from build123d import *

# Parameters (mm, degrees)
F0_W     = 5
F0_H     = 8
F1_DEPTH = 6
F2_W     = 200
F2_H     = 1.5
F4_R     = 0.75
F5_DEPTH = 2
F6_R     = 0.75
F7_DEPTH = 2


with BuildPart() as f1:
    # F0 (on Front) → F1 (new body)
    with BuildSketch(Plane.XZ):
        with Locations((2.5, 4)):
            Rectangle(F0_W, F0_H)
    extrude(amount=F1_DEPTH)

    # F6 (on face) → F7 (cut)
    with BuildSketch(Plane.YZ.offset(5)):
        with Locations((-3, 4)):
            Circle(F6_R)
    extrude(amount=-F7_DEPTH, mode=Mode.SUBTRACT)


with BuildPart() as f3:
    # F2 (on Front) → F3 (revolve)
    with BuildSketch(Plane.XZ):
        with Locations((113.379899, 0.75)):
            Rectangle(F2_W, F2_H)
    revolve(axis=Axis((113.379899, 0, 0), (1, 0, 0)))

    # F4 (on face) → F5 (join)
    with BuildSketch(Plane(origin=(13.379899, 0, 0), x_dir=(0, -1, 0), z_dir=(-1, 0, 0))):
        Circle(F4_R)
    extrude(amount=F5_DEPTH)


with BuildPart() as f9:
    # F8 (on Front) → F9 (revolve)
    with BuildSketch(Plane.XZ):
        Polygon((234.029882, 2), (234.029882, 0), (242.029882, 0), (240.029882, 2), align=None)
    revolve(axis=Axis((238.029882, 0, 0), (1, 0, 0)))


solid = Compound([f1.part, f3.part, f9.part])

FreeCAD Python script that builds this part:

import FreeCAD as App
import Part
import Sketcher
Q = App.Units.Quantity

doc = App.newDocument("Part")
body = doc.addObject("PartDesign::Body", "Body")

# Sketch on XZ plane
sketch1 = doc.addObject("Sketcher::SketchObject", "Sketch")
body.addObject(sketch1)
sketch1.AttachmentSupport = (doc.XZ_Plane, [""])
sketch1.MapMode = "FlatFace"
sketch1.addGeometry(Part.LineSegment(App.Vector(0, 8, 0), App.Vector(0, 0, 0)), False)
sketch1.addGeometry(Part.LineSegment(App.Vector(0, 0, 0), App.Vector(5, 0, 0)), False)
sketch1.addGeometry(Part.LineSegment(App.Vector(5, 0, 0), App.Vector(5, 8, 0)), False)
sketch1.addGeometry(Part.LineSegment(App.Vector(5, 8, 0), App.Vector(0, 8, 0)), False)
sketch1.addConstraint(Sketcher.Constraint("Coincident", 0, 2, 1, 1))
sketch1.addConstraint(Sketcher.Constraint("Coincident", 1, 2, 2, 1))
sketch1.addConstraint(Sketcher.Constraint("Coincident", 2, 2, 3, 1))
sketch1.addConstraint(Sketcher.Constraint("Coincident", 3, 2, 0, 1))
sketch1.addConstraint(Sketcher.Constraint("Vertical", 0))
sketch1.addConstraint(Sketcher.Constraint("Horizontal", 1))
sketch1.addConstraint(Sketcher.Constraint("Vertical", 2))
sketch1.addConstraint(Sketcher.Constraint("Horizontal", 3))
sketch1.addConstraint(Sketcher.Constraint("Coincident", 0, 2, -1, 1))
sketch1.addConstraint(Sketcher.Constraint("DistanceX", 1, 1, 1, 2, Q("5 mm")))
sketch1.addConstraint(Sketcher.Constraint("DistanceY", 0, 2, 0, 1, Q("8 mm")))
pad1 = doc.addObject("PartDesign::Pad", "Pad")
body.addObject(pad1)
pad1.Profile = sketch1
pad1.Length = 6

# Sketch on YZ plane
sketch2 = doc.addObject("Sketcher::SketchObject", "Sketch001")
body.addObject(sketch2)
sketch2.AttachmentSupport = (doc.YZ_Plane, [""])
sketch2.MapMode = "FlatFace"
sketch2.AttachmentOffset = App.Placement(App.Vector(0, 0, 5), App.Rotation())
sketch2.addGeometry(Part.Circle(App.Vector(-3, 4, 0), App.Vector(0, 0, 1), 0.8), False)
sketch2.addConstraint(Sketcher.Constraint("Diameter", 0, Q("1.5 mm")))
sketch2.addConstraint(Sketcher.Constraint("DistanceX", 0, 3, -1, 1, Q("3 mm")))
sketch2.addConstraint(Sketcher.Constraint("DistanceY", -1, 1, 0, 3, Q("4 mm")))
pocket1 = doc.addObject("PartDesign::Pocket", "Pocket")
body.addObject(pocket1)
pocket1.Profile = sketch2
pocket1.Length = 2
body2 = doc.addObject("PartDesign::Body", "Body001")

# Sketch on XZ plane
sketch3 = doc.addObject("Sketcher::SketchObject", "Sketch002")
body2.addObject(sketch3)
sketch3.AttachmentSupport = (doc.getObject("XZ_Plane001"), [""])
sketch3.MapMode = "FlatFace"
sketch3.addGeometry(Part.LineSegment(App.Vector(13.4, 1.5, 0), App.Vector(13.4, 0, 0)), False)
sketch3.addGeometry(Part.LineSegment(App.Vector(13.4, 0, 0), App.Vector(213.4, 0, 0)), False)
sketch3.addGeometry(Part.LineSegment(App.Vector(213.4, 0, 0), App.Vector(213.4, 1.5, 0)), False)
sketch3.addGeometry(Part.LineSegment(App.Vector(213.4, 1.5, 0), App.Vector(13.4, 1.5, 0)), False)
sketch3.addConstraint(Sketcher.Constraint("Coincident", 0, 2, 1, 1))
sketch3.addConstraint(Sketcher.Constraint("Coincident", 1, 2, 2, 1))
sketch3.addConstraint(Sketcher.Constraint("Coincident", 2, 2, 3, 1))
sketch3.addConstraint(Sketcher.Constraint("Coincident", 3, 2, 0, 1))
sketch3.addConstraint(Sketcher.Constraint("Vertical", 0))
sketch3.addConstraint(Sketcher.Constraint("Horizontal", 1))
sketch3.addConstraint(Sketcher.Constraint("Vertical", 2))
sketch3.addConstraint(Sketcher.Constraint("Horizontal", 3))
sketch3.addConstraint(Sketcher.Constraint("PointOnObject", 0, 2, -1))
sketch3.addConstraint(Sketcher.Constraint("DistanceX", 1, 1, 1, 2, Q("200 mm")))
sketch3.addConstraint(Sketcher.Constraint("DistanceY", 0, 2, 0, 1, Q("1.5 mm")))
sketch3.addConstraint(Sketcher.Constraint("DistanceX", -1, 1, 0, 2, Q("13.379899 mm")))
revolution = doc.addObject("PartDesign::Revolution", "Revolution")
body2.addObject(revolution)
revolution.Profile = sketch3
revolution.ReferenceAxis = (sketch3, ["H_Axis"])
revolution.Angle = 360

# Sketch on YZ plane
sketch4 = doc.addObject("Sketcher::SketchObject", "Sketch003")
body2.addObject(sketch4)
sketch4.AttachmentSupport = (doc.getObject("YZ_Plane001"), [""])
sketch4.MapMode = "FlatFace"
sketch4.AttachmentOffset = App.Placement(App.Vector(0, 0, 13.379899), App.Rotation())
sketch4.addGeometry(Part.Circle(App.Vector(0, 0, 0), App.Vector(0, 0, 1), 0.8), False)
sketch4.addConstraint(Sketcher.Constraint("Coincident", 0, 3, -1, 1))
sketch4.addConstraint(Sketcher.Constraint("Diameter", 0, Q("1.5 mm")))
pad2 = doc.addObject("PartDesign::Pad", "Pad001")
body2.addObject(pad2)
pad2.Profile = sketch4
pad2.Length = 2
pad2.Reversed = True
body3 = doc.addObject("PartDesign::Body", "Body002")

# Sketch on XZ plane
sketch5 = doc.addObject("Sketcher::SketchObject", "Sketch004")
body3.addObject(sketch5)
sketch5.AttachmentSupport = (doc.getObject("XZ_Plane002"), [""])
sketch5.MapMode = "FlatFace"
sketch5.addGeometry(Part.LineSegment(App.Vector(234, 2, 0), App.Vector(234, 0, 0)), False)
sketch5.addGeometry(Part.LineSegment(App.Vector(234, 0, 0), App.Vector(242, 0, 0)), False)
sketch5.addGeometry(Part.LineSegment(App.Vector(242, 0, 0), App.Vector(240, 2, 0)), False)
sketch5.addGeometry(Part.LineSegment(App.Vector(240, 2, 0), App.Vector(234, 2, 0)), False)
sketch5.addConstraint(Sketcher.Constraint("Coincident", 0, 2, 1, 1))
sketch5.addConstraint(Sketcher.Constraint("Coincident", 1, 2, 2, 1))
sketch5.addConstraint(Sketcher.Constraint("Coincident", 2, 2, 3, 1))
sketch5.addConstraint(Sketcher.Constraint("Coincident", 3, 2, 0, 1))
sketch5.addConstraint(Sketcher.Constraint("Vertical", 0))
sketch5.addConstraint(Sketcher.Constraint("Horizontal", 1))
sketch5.addConstraint(Sketcher.Constraint("Horizontal", 3))
sketch5.addConstraint(Sketcher.Constraint("PointOnObject", 0, 2, -1))
sketch5.addConstraint(Sketcher.Constraint("DistanceX", 1, 1, 1, 2, Q("8 mm")))
sketch5.addConstraint(Sketcher.Constraint("DistanceX", 3, 2, 3, 1, Q("6 mm")))
sketch5.addConstraint(Sketcher.Constraint("DistanceY", 0, 2, 0, 1, Q("2 mm")))
sketch5.addConstraint(Sketcher.Constraint("DistanceX", -1, 1, 0, 2, Q("234.029882 mm")))
revolution2 = doc.addObject("PartDesign::Revolution", "Revolution001")
body3.addObject(revolution2)
revolution2.Profile = sketch5
revolution2.ReferenceAxis = (sketch5, ["H_Axis"])
revolution2.Angle = 360

doc.recompute()
